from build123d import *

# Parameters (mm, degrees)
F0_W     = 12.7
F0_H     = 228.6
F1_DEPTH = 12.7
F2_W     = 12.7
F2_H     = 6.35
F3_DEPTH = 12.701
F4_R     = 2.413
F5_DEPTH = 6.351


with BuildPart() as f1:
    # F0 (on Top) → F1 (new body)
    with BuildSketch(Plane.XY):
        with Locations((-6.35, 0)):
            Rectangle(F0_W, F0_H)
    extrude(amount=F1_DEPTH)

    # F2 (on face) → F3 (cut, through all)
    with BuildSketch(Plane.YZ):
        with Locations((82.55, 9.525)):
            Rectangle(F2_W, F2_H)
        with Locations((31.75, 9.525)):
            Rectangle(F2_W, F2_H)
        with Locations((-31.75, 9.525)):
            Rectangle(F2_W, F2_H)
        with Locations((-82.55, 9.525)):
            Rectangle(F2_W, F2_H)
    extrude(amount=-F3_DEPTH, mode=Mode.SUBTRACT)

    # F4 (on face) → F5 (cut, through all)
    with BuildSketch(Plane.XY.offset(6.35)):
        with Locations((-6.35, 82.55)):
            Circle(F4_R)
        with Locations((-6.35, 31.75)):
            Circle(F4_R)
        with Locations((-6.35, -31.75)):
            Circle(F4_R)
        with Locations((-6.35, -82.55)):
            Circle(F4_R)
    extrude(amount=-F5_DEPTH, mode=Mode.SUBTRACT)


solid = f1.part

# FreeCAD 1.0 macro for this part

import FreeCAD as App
import Part
import Sketcher
from FreeCAD import Vector
Q = App.Units.Quantity

doc = App.newDocument("Part")
body = doc.addObject("PartDesign::Body", "Body")

sketch1 = doc.addObject("Sketcher::SketchObject", "Sketch")
body.addObject(sketch1)
sketch1.AttachmentSupport = (doc.XY_Plane, [""])
sketch1.MapMode = "FlatFace"
sketch1.addGeometry([
    Part.LineSegment(Vector(-13, 114, 0), Vector(-13, -114, 0)),
    Part.LineSegment(Vector(-13, -114, 0), Vector(0, -114, 0)),
    Part.LineSegment(Vector(0, -114, 0), Vector(0, 114, 0)),
    Part.LineSegment(Vector(0, 114, 0), Vector(-13, 114, 0)),
], False)
sketch1.addConstraint([
    Sketcher.Constraint("Coincident", 0, 2, 1, 1),
    Sketcher.Constraint("Coincident", 1, 2, 2, 1),
    Sketcher.Constraint("Coincident", 2, 2, 3, 1),
    Sketcher.Constraint("Coincident", 3, 2, 0, 1),
    Sketcher.Constraint("Vertical", 0),
    Sketcher.Constraint("Horizontal", 1),
    Sketcher.Constraint("Vertical", 2),
    Sketcher.Constraint("Horizontal", 3),
    Sketcher.Constraint("Symmetric", 1, 2, 2, 2, -1, 1),
    Sketcher.Constraint("DistanceY", 0, 2, 0, 1, Q("9 in")),
    Sketcher.Constraint("DistanceX", 1, 1, 1, 2, Q("0.5 in")),
])
pad1 = doc.addObject("PartDesign::Pad", "Pad")
body.addObject(pad1)
pad1.Profile = sketch1
pad1.Length = Q("0.5 in")

sketch2 = doc.addObject("Sketcher::SketchObject", "Sketch001")
body.addObject(sketch2)
sketch2.AttachmentSupport = (doc.YZ_Plane, [""])
sketch2.MapMode = "FlatFace"
sketch2.addGeometry([
    Part.LineSegment(Vector(76, 13, 0), Vector(76, 6, 0)),
    Part.LineSegment(Vector(76, 6, 0), Vector(89, 6, 0)),
    Part.LineSegment(Vector(89, 6, 0), Vector(89, 13, 0)),
    Part.LineSegment(Vector(89, 13, 0), Vector(76, 13, 0)),
    Part.LineSegment(Vector(25, 13, 0), Vector(25, 6, 0)),
    Part.LineSegment(Vector(25, 6, 0), Vector(38, 6, 0)),
    Part.LineSegment(Vector(38, 6, 0), Vector(38, 13, 0)),
    Part.LineSegment(Vector(38, 13, 0), Vector(25, 13, 0)),
    Part.LineSegment(Vector(-38, 13, 0), Vector(-38, 6, 0)),
    Part.LineSegment(Vector(-38, 6, 0), Vector(-25, 6, 0)),
    Part.LineSegment(Vector(-25, 6, 0), Vector(-25, 13, 0)),
    Part.LineSegment(Vector(-25, 13, 0), Vector(-38, 13, 0)),
    Part.LineSegment(Vector(-89, 13, 0), Vector(-89, 6, 0)),
    Part.LineSegment(Vector(-89, 6, 0), Vector(-76, 6, 0)),
    Part.LineSegment(Vector(-76, 6, 0), Vector(-76, 13, 0)),
    Part.LineSegment(Vector(-76, 13, 0), Vector(-89, 13, 0)),
], False)
sketch2.addConstraint([
    Sketcher.Constraint("Coincident", 0, 2, 1, 1),
    Sketcher.Constraint("Coincident", 1, 2, 2, 1),
    Sketcher.Constraint("Coincident", 2, 2, 3, 1),
    Sketcher.Constraint("Coincident", 3, 2, 0, 1),
    Sketcher.Constraint("Coincident", 4, 2, 5, 1),
    Sketcher.Constraint("Coincident", 5, 2, 6, 1),
    Sketcher.Constraint("Coincident", 6, 2, 7, 1),
    Sketcher.Constraint("Coincident", 7, 2, 4, 1),
    Sketcher.Constraint("Coincident", 8, 2, 9, 1),
    Sketcher.Constraint("Coincident", 9, 2, 10, 1),
    Sketcher.Constraint("Coincident", 10, 2, 11, 1),
    Sketcher.Constraint("Coincident", 11, 2, 8, 1),
    Sketcher.Constraint("Coincident", 12, 2, 13, 1),
    Sketcher.Constraint("Coincident", 13, 2, 14, 1),
    Sketcher.Constraint("Coincident", 14, 2, 15, 1),
    Sketcher.Constraint("Coincident", 15, 2, 12, 1),
    Sketcher.Constraint("Vertical", 0),
    Sketcher.Constraint("Horizontal", 1),
    Sketcher.Constraint("Vertical", 2),
    Sketcher.Constraint("Horizontal", 3),
    Sketcher.Constraint("Vertical", 4),
    Sketcher.Constraint("Horizontal", 5),
    Sketcher.Constraint("Vertical", 6),
    Sketcher.Constraint("Horizontal", 7),
    Sketcher.Constraint("Vertical", 8),
    Sketcher.Constraint("Horizontal", 9),
    Sketcher.Constraint("Vertical", 10),
    Sketcher.Constraint("Horizontal", 11),
    Sketcher.Constraint("Vertical", 12),
    Sketcher.Constraint("Horizontal", 13),
    Sketcher.Constraint("Vertical", 14),
    Sketcher.Constraint("Horizontal", 15),
    Sketcher.Constraint("Symmetric", 5, 2, 8, 2, -2),
    Sketcher.Constraint("Symmetric", 7, 2, 10, 2, -2),
    Sketcher.Constraint("Symmetric", 1, 2, 12, 2, -2),
    Sketcher.Constraint("Symmetric", 3, 2, 14, 2, -2),
    Sketcher.Constraint("Horizontal", 1, 2, 4, 2),
    Sketcher.Constraint("Horizontal", 3, 2, 6, 2),
    Sketcher.Constraint("Equal", 3, 5),
    Sketcher.Constraint("DistanceX", 1, 1, 1, 2, Q("0.5 in")),
    Sketcher.Constraint("DistanceX", -1, 1, 0, 2, Q("3 in")),
    Sketcher.Constraint("DistanceX", -1, 1, 4, 2, Q("1 in")),
    Sketcher.Constraint("DistanceY", 0, 2, 0, 1, Q("0.25 in")),
    Sketcher.Constraint("DistanceY", -1, 1, 2, 2, Q("0.5 in")),
])
pocket1 = doc.addObject("PartDesign::Pocket", "Pocket")
body.addObject(pocket1)
pocket1.Profile = sketch2
pocket1.Type = "ThroughAll"

sketch3 = doc.addObject("Sketcher::SketchObject", "Sketch002")
body.addObject(sketch3)
sketch3.AttachmentSupport = (doc.XY_Plane, [""])
sketch3.MapMode = "FlatFace"
sketch3.AttachmentOffset = App.Placement(Vector(0, 0, 0.25 * 25.4), App.Rotation())
sketch3.addGeometry([
    Part.Circle(Vector(-6.3, 82.5, 0), Vector(0, 0, 1), 2.4),
    Part.Circle(Vector(-6.3, 31.8, 0), Vector(0, 0, 1), 2.4),
    Part.Circle(Vector(-6.3, -31.8, 0), Vector(0, 0, 1), 2.4),
    Part.Circle(Vector(-6.3, -82.5, 0), Vector(0, 0, 1), 2.4),
], False)
sketch3.addConstraint([
    Sketcher.Constraint("Equal", 0, 1),
    Sketcher.Constraint("Equal", 1, 2),
    Sketcher.Constraint("Equal", 2, 3),
    Sketcher.Constraint("Symmetric", 1, 3, 2, 3, -1),
    Sketcher.Constraint("Symmetric", 0, 3, 3, 3, -1),
    Sketcher.Constraint("Vertical", 0, 3, 1, 3),
    Sketcher.Constraint("Diameter", 0, Q("0.19 in")),
    Sketcher.Constraint("DistanceY", 1, 3, 0, 3, Q("2 in")),
    Sketcher.Constraint("DistanceY", 2, 3, 1, 3, Q("2.5 in")),
    Sketcher.Constraint("DistanceX", 0, 3, -1, 1, Q("0.25 in")),
])
pocket2 = doc.addObject("PartDesign::Pocket", "Pocket001")
body.addObject(pocket2)
pocket2.Profile = sketch3
pocket2.Type = "ThroughAll"

doc.recompute()
